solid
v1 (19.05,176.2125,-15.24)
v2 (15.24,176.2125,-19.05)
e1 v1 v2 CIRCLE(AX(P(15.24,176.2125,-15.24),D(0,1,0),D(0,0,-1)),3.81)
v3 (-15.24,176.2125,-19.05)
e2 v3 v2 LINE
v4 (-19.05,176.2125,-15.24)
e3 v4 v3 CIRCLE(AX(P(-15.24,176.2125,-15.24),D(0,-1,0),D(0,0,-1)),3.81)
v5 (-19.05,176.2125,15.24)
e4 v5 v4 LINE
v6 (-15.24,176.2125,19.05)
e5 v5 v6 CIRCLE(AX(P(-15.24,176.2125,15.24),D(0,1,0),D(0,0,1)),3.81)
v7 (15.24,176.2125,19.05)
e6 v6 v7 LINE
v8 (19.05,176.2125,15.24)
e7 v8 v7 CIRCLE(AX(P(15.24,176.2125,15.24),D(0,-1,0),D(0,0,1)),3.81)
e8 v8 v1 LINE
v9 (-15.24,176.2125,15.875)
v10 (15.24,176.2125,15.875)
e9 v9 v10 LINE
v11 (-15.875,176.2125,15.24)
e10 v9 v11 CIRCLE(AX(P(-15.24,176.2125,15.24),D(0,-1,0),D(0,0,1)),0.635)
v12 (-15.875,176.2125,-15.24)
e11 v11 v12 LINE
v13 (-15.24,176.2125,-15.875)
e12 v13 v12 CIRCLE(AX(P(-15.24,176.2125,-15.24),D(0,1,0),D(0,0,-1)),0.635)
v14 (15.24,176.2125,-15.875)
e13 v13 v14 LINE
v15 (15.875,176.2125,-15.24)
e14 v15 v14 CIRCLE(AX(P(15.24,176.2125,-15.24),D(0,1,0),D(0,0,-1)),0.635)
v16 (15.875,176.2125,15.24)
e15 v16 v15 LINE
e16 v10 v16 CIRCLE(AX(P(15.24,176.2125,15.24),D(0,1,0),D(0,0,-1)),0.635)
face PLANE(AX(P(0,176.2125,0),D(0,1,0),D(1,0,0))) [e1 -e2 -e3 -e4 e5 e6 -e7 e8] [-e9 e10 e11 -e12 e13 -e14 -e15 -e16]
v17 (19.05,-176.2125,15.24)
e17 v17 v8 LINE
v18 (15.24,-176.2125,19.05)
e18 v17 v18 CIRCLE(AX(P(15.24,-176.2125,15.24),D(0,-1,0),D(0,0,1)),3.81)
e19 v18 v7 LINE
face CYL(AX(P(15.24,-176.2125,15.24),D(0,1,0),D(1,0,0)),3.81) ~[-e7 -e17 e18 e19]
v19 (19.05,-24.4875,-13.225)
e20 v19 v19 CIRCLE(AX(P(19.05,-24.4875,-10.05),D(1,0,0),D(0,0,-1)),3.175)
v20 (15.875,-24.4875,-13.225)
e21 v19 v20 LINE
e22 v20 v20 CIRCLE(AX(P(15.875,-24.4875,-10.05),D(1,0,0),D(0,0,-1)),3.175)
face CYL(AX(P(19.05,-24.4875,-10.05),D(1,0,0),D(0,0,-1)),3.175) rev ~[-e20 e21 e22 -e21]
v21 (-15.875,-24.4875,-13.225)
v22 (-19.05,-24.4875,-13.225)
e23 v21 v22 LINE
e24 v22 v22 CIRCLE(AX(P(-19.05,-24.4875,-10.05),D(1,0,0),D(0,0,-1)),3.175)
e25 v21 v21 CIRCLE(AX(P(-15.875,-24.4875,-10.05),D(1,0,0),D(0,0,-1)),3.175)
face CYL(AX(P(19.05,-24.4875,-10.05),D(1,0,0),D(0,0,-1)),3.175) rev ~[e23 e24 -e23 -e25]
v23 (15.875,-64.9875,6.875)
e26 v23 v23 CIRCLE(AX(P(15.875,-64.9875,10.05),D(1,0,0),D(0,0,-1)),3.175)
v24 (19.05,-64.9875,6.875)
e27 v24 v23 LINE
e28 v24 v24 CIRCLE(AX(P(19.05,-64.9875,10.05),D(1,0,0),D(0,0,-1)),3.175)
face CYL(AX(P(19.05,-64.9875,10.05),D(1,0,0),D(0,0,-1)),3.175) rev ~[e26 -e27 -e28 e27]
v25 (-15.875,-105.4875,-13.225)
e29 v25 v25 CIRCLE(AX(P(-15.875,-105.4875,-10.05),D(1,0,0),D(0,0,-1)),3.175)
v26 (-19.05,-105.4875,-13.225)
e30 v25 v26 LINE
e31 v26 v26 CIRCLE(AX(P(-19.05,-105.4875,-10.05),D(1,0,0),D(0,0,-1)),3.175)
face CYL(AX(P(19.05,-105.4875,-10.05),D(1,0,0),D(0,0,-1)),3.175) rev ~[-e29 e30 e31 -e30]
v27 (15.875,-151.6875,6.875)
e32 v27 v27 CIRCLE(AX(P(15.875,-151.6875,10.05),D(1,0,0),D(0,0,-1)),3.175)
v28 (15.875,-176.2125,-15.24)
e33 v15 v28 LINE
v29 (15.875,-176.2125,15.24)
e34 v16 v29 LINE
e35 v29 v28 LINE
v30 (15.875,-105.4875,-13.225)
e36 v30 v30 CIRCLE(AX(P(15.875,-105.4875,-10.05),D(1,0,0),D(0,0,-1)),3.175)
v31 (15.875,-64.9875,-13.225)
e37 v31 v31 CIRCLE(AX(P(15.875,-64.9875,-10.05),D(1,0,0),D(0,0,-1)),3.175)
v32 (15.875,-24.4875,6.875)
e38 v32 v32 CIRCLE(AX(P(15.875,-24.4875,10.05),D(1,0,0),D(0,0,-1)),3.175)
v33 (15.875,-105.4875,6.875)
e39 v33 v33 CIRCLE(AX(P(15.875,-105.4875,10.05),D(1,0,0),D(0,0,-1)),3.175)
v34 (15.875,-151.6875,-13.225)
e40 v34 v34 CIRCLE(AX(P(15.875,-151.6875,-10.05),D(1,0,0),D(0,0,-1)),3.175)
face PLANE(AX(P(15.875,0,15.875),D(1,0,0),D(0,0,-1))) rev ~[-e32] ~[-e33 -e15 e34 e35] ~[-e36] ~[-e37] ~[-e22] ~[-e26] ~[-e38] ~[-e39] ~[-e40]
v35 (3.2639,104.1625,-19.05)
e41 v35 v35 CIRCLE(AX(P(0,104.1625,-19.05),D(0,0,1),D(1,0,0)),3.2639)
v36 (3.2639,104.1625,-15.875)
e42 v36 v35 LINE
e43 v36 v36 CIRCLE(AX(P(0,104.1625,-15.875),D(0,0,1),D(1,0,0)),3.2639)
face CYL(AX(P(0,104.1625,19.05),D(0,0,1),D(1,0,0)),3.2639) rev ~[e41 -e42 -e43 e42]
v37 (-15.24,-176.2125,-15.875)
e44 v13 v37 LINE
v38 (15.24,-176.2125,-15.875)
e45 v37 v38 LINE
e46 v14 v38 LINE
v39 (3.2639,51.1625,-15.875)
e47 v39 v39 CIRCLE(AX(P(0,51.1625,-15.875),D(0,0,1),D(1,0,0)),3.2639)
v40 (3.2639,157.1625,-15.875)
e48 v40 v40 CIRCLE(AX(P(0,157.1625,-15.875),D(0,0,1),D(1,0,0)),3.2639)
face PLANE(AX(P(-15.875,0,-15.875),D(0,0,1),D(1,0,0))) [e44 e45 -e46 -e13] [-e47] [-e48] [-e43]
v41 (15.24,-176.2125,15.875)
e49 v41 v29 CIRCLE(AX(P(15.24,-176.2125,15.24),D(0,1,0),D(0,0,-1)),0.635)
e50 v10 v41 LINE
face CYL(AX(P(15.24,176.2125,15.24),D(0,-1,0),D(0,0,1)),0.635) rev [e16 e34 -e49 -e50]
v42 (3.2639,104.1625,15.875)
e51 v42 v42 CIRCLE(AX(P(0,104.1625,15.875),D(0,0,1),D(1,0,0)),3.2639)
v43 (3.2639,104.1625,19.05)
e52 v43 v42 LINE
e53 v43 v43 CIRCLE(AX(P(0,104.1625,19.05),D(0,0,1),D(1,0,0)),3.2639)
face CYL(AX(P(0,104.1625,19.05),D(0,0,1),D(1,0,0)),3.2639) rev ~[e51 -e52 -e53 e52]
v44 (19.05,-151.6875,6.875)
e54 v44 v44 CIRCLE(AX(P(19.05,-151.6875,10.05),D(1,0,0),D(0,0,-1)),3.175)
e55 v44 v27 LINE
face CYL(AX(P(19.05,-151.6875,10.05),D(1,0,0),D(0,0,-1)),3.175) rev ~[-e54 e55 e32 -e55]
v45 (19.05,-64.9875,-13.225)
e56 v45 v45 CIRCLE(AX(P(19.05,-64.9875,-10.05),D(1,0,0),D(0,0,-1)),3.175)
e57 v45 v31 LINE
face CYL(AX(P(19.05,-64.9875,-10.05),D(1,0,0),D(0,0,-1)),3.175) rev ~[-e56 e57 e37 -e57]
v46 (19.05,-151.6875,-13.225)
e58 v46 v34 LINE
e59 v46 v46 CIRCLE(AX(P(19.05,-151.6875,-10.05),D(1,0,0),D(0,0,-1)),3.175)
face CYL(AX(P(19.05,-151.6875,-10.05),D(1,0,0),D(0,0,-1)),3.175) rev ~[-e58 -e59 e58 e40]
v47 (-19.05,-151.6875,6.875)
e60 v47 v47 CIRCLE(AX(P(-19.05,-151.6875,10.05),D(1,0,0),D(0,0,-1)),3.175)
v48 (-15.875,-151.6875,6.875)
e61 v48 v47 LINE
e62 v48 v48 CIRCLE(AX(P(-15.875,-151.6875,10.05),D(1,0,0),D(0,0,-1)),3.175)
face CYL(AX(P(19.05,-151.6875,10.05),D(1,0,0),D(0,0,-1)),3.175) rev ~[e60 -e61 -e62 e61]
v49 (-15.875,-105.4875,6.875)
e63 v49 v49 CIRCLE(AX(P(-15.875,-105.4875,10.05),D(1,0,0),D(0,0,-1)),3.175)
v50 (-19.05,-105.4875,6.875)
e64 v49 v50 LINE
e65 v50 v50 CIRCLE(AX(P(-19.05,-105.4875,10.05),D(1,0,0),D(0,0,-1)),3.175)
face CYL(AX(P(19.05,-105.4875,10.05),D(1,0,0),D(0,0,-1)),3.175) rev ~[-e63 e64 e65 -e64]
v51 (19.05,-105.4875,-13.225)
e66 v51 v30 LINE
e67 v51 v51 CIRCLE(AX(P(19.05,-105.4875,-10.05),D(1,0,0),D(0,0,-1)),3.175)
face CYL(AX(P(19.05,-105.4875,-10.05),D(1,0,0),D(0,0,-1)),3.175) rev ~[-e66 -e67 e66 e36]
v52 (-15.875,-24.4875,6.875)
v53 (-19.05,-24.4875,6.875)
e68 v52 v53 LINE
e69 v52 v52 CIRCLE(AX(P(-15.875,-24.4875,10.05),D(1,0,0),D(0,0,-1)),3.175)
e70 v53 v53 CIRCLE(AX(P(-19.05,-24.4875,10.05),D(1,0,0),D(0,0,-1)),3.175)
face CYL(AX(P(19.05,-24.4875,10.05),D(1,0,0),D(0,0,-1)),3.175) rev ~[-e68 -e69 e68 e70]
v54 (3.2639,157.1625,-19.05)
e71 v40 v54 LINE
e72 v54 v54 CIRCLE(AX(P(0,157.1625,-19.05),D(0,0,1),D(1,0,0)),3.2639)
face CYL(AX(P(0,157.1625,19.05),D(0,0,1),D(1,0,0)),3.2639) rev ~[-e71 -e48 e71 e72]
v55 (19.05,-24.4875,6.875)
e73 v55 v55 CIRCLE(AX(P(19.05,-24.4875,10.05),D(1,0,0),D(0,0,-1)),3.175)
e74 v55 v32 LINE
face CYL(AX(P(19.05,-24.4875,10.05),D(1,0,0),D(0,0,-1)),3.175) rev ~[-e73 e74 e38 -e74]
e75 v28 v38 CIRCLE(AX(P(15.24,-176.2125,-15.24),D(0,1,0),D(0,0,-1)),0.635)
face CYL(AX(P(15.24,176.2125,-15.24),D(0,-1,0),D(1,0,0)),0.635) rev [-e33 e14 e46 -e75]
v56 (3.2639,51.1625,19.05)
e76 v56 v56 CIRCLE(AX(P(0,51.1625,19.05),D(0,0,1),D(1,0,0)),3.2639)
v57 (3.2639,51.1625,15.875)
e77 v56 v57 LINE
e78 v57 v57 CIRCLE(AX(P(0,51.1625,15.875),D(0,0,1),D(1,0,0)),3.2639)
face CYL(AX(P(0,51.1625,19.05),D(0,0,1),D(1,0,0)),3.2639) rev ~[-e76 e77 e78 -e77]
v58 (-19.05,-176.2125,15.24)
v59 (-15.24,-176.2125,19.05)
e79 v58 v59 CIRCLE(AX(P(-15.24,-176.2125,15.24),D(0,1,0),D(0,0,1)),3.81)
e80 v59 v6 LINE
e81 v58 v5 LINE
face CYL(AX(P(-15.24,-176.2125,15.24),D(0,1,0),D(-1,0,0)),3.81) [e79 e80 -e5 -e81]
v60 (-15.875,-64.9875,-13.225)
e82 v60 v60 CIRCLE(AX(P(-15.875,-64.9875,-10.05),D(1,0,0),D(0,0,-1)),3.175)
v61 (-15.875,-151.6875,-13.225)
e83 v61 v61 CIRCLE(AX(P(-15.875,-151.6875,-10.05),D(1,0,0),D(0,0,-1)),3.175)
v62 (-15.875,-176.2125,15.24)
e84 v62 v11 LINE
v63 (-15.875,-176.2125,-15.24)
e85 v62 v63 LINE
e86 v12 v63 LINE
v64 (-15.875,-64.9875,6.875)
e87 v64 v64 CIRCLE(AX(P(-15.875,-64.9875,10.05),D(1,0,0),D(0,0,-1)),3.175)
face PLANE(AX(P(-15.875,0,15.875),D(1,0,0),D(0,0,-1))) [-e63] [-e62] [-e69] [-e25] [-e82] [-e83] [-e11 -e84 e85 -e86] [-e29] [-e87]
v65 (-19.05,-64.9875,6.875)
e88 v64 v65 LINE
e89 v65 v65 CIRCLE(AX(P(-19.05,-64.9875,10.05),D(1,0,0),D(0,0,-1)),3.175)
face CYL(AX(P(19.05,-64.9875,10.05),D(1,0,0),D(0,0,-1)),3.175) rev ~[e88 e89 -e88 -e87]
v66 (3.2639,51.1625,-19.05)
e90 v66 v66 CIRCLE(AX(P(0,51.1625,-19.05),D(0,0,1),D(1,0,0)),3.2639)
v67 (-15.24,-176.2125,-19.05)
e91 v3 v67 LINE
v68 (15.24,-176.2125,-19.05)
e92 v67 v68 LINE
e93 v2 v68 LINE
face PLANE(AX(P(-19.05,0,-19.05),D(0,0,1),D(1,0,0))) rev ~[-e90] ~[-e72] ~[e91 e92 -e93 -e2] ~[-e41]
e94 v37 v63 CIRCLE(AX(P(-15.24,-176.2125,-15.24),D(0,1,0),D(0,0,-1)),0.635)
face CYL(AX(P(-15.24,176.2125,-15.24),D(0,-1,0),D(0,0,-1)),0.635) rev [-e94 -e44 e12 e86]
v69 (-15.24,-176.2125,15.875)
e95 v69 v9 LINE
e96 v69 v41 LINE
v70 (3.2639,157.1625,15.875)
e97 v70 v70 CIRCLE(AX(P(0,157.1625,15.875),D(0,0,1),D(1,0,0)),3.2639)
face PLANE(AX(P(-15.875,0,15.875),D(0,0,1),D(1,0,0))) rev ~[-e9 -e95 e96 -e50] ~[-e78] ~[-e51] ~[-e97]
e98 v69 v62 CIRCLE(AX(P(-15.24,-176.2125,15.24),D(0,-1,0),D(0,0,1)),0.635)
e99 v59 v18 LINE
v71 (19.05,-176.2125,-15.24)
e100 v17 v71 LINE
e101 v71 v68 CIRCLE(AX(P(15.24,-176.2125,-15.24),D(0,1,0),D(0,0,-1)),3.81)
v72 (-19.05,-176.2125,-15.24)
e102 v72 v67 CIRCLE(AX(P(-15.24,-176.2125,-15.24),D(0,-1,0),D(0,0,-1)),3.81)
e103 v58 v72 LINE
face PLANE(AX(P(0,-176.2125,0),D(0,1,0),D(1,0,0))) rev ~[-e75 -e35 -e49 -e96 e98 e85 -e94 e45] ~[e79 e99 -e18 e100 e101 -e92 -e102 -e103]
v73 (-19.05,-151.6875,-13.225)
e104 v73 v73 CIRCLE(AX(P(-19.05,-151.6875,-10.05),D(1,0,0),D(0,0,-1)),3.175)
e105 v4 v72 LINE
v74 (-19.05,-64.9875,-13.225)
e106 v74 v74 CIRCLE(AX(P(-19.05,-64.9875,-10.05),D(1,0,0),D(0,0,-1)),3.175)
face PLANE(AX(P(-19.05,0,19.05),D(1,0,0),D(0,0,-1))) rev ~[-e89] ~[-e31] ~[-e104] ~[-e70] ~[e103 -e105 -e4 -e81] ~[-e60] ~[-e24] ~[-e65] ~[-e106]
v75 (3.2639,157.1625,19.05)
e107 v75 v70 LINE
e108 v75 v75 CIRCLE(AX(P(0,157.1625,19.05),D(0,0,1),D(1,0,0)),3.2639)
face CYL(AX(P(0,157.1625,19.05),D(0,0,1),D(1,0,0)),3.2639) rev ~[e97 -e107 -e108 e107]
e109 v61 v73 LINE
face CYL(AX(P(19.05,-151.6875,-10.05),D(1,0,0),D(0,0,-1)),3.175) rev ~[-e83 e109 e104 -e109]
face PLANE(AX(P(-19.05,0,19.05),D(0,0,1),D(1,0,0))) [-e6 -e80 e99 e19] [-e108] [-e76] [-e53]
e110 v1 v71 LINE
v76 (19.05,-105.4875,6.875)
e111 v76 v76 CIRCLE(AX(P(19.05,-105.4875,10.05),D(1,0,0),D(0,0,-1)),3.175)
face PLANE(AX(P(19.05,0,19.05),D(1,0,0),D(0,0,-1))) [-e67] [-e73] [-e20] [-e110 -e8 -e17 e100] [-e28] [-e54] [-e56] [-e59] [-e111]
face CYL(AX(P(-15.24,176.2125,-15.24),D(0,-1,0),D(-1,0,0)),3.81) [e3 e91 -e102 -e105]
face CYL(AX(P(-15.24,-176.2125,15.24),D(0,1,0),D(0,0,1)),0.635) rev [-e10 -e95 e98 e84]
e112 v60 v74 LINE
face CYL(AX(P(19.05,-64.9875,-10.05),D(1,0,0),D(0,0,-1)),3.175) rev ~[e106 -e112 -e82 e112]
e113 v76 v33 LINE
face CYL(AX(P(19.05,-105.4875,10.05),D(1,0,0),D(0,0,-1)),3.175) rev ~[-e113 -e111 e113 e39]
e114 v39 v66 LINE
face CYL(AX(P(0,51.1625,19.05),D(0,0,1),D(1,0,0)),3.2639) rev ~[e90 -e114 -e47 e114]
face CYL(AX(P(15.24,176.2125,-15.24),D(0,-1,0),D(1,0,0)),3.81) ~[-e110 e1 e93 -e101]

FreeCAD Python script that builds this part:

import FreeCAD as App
import Part
import Sketcher
from FreeCAD import Vector
Q = App.Units.Quantity


def edges_at(feature, points):
    """Names of the edges that pass closest to the given points."""
    edges = feature.Shape.Edges
    near = lambda p: min(range(len(edges)), key=lambda i: edges[i].distToShape(Part.Vertex(*p))[0])
    return sorted({f"Edge{near(p) + 1}" for p in points})

doc = App.newDocument("Part")
body = doc.addObject("PartDesign::Body", "Body")

sketch1 = body.newObject("Sketcher::SketchObject", "Sketch")
sketch1.AttachmentSupport = (doc.getObject("XZ_Plane"), [""])
sketch1.MapMode = "FlatFace"
sketch1.addGeometry(Part.LineSegment(Vector(-19, -19, 0), Vector(-19, 19, 0)), False)
sketch1.addGeometry(Part.LineSegment(Vector(-19, 19, 0), Vector(19, 19, 0)), False)
sketch1.addGeometry(Part.LineSegment(Vector(19, 19, 0), Vector(19, -19, 0)), False)
sketch1.addGeometry(Part.LineSegment(Vector(19, -19, 0), Vector(-19, -19, 0)), False)
sketch1.addGeometry(Part.LineSegment(Vector(16, 16, 0), Vector(-16, 16, 0)), False)
sketch1.addGeometry(Part.LineSegment(Vector(-16, 16, 0), Vector(-16, -16, 0)), False)
sketch1.addGeometry(Part.LineSegment(Vector(-16, -16, 0), Vector(16, -16, 0)), False)
sketch1.addGeometry(Part.LineSegment(Vector(16, -16, 0), Vector(16, 16, 0)), False)
sketch1.addConstraint(Sketcher.Constraint("Coincident", 0, 2, 1, 1))
sketch1.addConstraint(Sketcher.Constraint("Coincident", 1, 2, 2, 1))
sketch1.addConstraint(Sketcher.Constraint("Coincident", 2, 2, 3, 1))
sketch1.addConstraint(Sketcher.Constraint("Coincident", 3, 2, 0, 1))
sketch1.addConstraint(Sketcher.Constraint("Coincident", 4, 2, 5, 1))
sketch1.addConstraint(Sketcher.Constraint("Coincident", 5, 2, 6, 1))
sketch1.addConstraint(Sketcher.Constraint("Coincident", 6, 2, 7, 1))
sketch1.addConstraint(Sketcher.Constraint("Coincident", 7, 2, 4, 1))
sketch1.addConstraint(Sketcher.Constraint("Vertical", 0))
sketch1.addConstraint(Sketcher.Constraint("Horizontal", 1))
sketch1.addConstraint(Sketcher.Constraint("Vertical", 2))
sketch1.addConstraint(Sketcher.Constraint("Horizontal", 3))
sketch1.addConstraint(Sketcher.Constraint("Horizontal", 4))
sketch1.addConstraint(Sketcher.Constraint("Vertical", 5))
sketch1.addConstraint(Sketcher.Constraint("Horizontal", 6))
sketch1.addConstraint(Sketcher.Constraint("Vertical", 7))
sketch1.addConstraint(Sketcher.Constraint("Symmetric", 0, 2, 2, 2, -1, 1))
sketch1.addConstraint(Sketcher.Constraint("Symmetric", 4, 2, 6, 2, -1, 1))
sketch1.addConstraint(Sketcher.Constraint("Equal", 3, 0))
sketch1.addConstraint(Sketcher.Constraint("Equal", 6, 5))
sketch1.addConstraint(Sketcher.Constraint("DistanceX", 1, 1, 1, 2, Q("1.5 in")))
sketch1.addConstraint(Sketcher.Constraint("DistanceX", 4, 2, 4, 1, Q("1.25 in")))
pad1 = body.newObject("PartDesign::Pad", "Pad")
pad1.Profile = sketch1
pad1.Length = Q("13.875 in")
pad1.Midplane = True
doc.recompute()

fillet = body.newObject("PartDesign::Fillet", "Fillet")
fillet.Base = (pad1, edges_at(pad1, [
    (19.05, 0, 19.05),
    (-19.05, 0, 19.05),
    (-19.05, 0, -19.05),
    (19.05, 0, -19.05),
]))
fillet.Radius = Q("0.15 in")
doc.recompute()

fillet2 = body.newObject("PartDesign::Fillet", "Fillet001")
fillet2.Base = (fillet, edges_at(fillet, [
    (15.875, 0, -15.875),
    (-15.875, 0, -15.875),
    (-15.875, 0, 15.875),
    (15.875, 0, 15.875),
]))
fillet2.Radius = Q("0.025 in")

sketch2 = body.newObject("Sketcher::SketchObject", "Sketch001")
sketch2.AttachmentSupport = (doc.getObject("XY_Plane"), [""])
sketch2.MapMode = "FlatFace"
sketch2.AttachmentOffset = App.Placement(Vector(0, 0, 0.75 * 25.4), App.Rotation())
sketch2.addGeometry(Part.Circle(Vector(0, 157.2, 0), Vector(0, 0, 1), 3.3), False)
sketch2.addGeometry(Part.Circle(Vector(0, 104.2, 0), Vector(0, 0, 1), 3.3), False)
sketch2.addGeometry(Part.Circle(Vector(0, 51.2, 0), Vector(0, 0, 1), 3.3), False)
sketch2.addConstraint(Sketcher.Constraint("Equal", 0, 1))
sketch2.addConstraint(Sketcher.Constraint("Equal", 1, 2))
sketch2.addConstraint(Sketcher.Constraint("PointOnObject", 0, 3, -2))
sketch2.addConstraint(Sketcher.Constraint("PointOnObject", 1, 3, -2))
sketch2.addConstraint(Sketcher.Constraint("PointOnObject", 2, 3, -2))
sketch2.addConstraint(Sketcher.Constraint("Diameter", 0, Q("0.257 in")))
sketch2.addConstraint(Sketcher.Constraint("DistanceY", -1, 1, 0, 3, Q("6.1875 in")))
sketch2.addConstraint(Sketcher.Constraint("DistanceY", -1, 1, 1, 3, Q("104.1625 mm")))
sketch2.addConstraint(Sketcher.Constraint("DistanceY", -1, 1, 2, 3, Q("51.1625 mm")))
pocket1 = body.newObject("PartDesign::Pocket", "Pocket")
pocket1.Profile = sketch2
pocket1.Type = "ThroughAll"
pocket1.Midplane = True

sketch3 = body.newObject("Sketcher::SketchObject", "Sketch002")
sketch3.AttachmentSupport = (doc.getObject("YZ_Plane"), [""])
sketch3.MapMode = "FlatFace"
sketch3.AttachmentOffset = App.Placement(Vector(0, 0, 0.75 * 25.4), App.Rotation())
sketch3.addGeometry(Part.Circle(Vector(-151.7, 10.1, 0), Vector(0, 0, 1), 3.2), False)
sketch3.addGeometry(Part.Circle(Vector(-24.5, 10.1, 0), Vector(0, 0, 1), 3.2), False)
sketch3.addGeometry(Part.Circle(Vector(-105.5, 10.1, 0), Vector(0, 0, 1), 3.2), False)
sketch3.addGeometry(Part.Circle(Vector(-65, 10.1, 0), Vector(0, 0, 1), 3.2), False)
sketch3.addGeometry(Part.Circle(Vector(-151.7, -10.1, 0), Vector(0, 0, 1), 3.2), False)
sketch3.addGeometry(Part.Circle(Vector(-24.5, -10.1, 0), Vector(0, 0, 1), 3.2), False)
sketch3.addGeometry(Part.Circle(Vector(-105.5, -10.1, 0), Vector(0, 0, 1), 3.2), False)
sketch3.addGeometry(Part.Circle(Vector(-65, -10.1, 0), Vector(0, 0, 1), 3.2), False)
sketch3.addConstraint(Sketcher.Constraint("Equal", 0, 1))
sketch3.addConstraint(Sketcher.Constraint("Equal", 1, 2))
sketch3.addConstraint(Sketcher.Constraint("Equal", 2, 3))
sketch3.addConstraint(Sketcher.Constraint("Equal", 3, 4))
sketch3.addConstraint(Sketcher.Constraint("Equal", 4, 5))
sketch3.addConstraint(Sketcher.Constraint("Equal", 5, 6))
sketch3.addConstraint(Sketcher.Constraint("Equal", 6, 7))
sketch3.addConstraint(Sketcher.Constraint("Symmetric", 0, 3, 4, 3, -1))
sketch3.addConstraint(Sketcher.Constraint("Symmetric", 1, 3, 5, 3, -1))
sketch3.addConstraint(Sketcher.Constraint("Symmetric", 2, 3, 6, 3, -1))
sketch3.addConstraint(Sketcher.Constraint("Symmetric", 3, 3, 7, 3, -1))
sketch3.addConstraint(Sketcher.Constraint("Horizontal", 0, 3, 1, 3))
sketch3.addConstraint(Sketcher.Constraint("Horizontal", 1, 3, 2, 3))
sketch3.addConstraint(Sketcher.Constraint("Horizontal", 2, 3, 3, 3))
sketch3.addConstraint(Sketcher.Constraint("Diameter", 0, Q("0.25 in")))
sketch3.addConstraint(Sketcher.Constraint("DistanceX", 0, 3, -1, 1, Q("151.6875 mm")))
sketch3.addConstraint(Sketcher.Constraint("DistanceY", -1, 1, 0, 3, Q("10.05 mm")))
sketch3.addConstraint(Sketcher.Constraint("DistanceX", 1, 3, -1, 1, Q("24.4875 mm")))
sketch3.addConstraint(Sketcher.Constraint("DistanceX", 2, 3, -1, 1, Q("105.4875 mm")))
sketch3.addConstraint(Sketcher.Constraint("DistanceX", 3, 3, -1, 1, Q("64.9875 mm")))
pocket2 = body.newObject("PartDesign::Pocket", "Pocket001")
pocket2.Profile = sketch3
pocket2.Type = "ThroughAll"

doc.recompute()
